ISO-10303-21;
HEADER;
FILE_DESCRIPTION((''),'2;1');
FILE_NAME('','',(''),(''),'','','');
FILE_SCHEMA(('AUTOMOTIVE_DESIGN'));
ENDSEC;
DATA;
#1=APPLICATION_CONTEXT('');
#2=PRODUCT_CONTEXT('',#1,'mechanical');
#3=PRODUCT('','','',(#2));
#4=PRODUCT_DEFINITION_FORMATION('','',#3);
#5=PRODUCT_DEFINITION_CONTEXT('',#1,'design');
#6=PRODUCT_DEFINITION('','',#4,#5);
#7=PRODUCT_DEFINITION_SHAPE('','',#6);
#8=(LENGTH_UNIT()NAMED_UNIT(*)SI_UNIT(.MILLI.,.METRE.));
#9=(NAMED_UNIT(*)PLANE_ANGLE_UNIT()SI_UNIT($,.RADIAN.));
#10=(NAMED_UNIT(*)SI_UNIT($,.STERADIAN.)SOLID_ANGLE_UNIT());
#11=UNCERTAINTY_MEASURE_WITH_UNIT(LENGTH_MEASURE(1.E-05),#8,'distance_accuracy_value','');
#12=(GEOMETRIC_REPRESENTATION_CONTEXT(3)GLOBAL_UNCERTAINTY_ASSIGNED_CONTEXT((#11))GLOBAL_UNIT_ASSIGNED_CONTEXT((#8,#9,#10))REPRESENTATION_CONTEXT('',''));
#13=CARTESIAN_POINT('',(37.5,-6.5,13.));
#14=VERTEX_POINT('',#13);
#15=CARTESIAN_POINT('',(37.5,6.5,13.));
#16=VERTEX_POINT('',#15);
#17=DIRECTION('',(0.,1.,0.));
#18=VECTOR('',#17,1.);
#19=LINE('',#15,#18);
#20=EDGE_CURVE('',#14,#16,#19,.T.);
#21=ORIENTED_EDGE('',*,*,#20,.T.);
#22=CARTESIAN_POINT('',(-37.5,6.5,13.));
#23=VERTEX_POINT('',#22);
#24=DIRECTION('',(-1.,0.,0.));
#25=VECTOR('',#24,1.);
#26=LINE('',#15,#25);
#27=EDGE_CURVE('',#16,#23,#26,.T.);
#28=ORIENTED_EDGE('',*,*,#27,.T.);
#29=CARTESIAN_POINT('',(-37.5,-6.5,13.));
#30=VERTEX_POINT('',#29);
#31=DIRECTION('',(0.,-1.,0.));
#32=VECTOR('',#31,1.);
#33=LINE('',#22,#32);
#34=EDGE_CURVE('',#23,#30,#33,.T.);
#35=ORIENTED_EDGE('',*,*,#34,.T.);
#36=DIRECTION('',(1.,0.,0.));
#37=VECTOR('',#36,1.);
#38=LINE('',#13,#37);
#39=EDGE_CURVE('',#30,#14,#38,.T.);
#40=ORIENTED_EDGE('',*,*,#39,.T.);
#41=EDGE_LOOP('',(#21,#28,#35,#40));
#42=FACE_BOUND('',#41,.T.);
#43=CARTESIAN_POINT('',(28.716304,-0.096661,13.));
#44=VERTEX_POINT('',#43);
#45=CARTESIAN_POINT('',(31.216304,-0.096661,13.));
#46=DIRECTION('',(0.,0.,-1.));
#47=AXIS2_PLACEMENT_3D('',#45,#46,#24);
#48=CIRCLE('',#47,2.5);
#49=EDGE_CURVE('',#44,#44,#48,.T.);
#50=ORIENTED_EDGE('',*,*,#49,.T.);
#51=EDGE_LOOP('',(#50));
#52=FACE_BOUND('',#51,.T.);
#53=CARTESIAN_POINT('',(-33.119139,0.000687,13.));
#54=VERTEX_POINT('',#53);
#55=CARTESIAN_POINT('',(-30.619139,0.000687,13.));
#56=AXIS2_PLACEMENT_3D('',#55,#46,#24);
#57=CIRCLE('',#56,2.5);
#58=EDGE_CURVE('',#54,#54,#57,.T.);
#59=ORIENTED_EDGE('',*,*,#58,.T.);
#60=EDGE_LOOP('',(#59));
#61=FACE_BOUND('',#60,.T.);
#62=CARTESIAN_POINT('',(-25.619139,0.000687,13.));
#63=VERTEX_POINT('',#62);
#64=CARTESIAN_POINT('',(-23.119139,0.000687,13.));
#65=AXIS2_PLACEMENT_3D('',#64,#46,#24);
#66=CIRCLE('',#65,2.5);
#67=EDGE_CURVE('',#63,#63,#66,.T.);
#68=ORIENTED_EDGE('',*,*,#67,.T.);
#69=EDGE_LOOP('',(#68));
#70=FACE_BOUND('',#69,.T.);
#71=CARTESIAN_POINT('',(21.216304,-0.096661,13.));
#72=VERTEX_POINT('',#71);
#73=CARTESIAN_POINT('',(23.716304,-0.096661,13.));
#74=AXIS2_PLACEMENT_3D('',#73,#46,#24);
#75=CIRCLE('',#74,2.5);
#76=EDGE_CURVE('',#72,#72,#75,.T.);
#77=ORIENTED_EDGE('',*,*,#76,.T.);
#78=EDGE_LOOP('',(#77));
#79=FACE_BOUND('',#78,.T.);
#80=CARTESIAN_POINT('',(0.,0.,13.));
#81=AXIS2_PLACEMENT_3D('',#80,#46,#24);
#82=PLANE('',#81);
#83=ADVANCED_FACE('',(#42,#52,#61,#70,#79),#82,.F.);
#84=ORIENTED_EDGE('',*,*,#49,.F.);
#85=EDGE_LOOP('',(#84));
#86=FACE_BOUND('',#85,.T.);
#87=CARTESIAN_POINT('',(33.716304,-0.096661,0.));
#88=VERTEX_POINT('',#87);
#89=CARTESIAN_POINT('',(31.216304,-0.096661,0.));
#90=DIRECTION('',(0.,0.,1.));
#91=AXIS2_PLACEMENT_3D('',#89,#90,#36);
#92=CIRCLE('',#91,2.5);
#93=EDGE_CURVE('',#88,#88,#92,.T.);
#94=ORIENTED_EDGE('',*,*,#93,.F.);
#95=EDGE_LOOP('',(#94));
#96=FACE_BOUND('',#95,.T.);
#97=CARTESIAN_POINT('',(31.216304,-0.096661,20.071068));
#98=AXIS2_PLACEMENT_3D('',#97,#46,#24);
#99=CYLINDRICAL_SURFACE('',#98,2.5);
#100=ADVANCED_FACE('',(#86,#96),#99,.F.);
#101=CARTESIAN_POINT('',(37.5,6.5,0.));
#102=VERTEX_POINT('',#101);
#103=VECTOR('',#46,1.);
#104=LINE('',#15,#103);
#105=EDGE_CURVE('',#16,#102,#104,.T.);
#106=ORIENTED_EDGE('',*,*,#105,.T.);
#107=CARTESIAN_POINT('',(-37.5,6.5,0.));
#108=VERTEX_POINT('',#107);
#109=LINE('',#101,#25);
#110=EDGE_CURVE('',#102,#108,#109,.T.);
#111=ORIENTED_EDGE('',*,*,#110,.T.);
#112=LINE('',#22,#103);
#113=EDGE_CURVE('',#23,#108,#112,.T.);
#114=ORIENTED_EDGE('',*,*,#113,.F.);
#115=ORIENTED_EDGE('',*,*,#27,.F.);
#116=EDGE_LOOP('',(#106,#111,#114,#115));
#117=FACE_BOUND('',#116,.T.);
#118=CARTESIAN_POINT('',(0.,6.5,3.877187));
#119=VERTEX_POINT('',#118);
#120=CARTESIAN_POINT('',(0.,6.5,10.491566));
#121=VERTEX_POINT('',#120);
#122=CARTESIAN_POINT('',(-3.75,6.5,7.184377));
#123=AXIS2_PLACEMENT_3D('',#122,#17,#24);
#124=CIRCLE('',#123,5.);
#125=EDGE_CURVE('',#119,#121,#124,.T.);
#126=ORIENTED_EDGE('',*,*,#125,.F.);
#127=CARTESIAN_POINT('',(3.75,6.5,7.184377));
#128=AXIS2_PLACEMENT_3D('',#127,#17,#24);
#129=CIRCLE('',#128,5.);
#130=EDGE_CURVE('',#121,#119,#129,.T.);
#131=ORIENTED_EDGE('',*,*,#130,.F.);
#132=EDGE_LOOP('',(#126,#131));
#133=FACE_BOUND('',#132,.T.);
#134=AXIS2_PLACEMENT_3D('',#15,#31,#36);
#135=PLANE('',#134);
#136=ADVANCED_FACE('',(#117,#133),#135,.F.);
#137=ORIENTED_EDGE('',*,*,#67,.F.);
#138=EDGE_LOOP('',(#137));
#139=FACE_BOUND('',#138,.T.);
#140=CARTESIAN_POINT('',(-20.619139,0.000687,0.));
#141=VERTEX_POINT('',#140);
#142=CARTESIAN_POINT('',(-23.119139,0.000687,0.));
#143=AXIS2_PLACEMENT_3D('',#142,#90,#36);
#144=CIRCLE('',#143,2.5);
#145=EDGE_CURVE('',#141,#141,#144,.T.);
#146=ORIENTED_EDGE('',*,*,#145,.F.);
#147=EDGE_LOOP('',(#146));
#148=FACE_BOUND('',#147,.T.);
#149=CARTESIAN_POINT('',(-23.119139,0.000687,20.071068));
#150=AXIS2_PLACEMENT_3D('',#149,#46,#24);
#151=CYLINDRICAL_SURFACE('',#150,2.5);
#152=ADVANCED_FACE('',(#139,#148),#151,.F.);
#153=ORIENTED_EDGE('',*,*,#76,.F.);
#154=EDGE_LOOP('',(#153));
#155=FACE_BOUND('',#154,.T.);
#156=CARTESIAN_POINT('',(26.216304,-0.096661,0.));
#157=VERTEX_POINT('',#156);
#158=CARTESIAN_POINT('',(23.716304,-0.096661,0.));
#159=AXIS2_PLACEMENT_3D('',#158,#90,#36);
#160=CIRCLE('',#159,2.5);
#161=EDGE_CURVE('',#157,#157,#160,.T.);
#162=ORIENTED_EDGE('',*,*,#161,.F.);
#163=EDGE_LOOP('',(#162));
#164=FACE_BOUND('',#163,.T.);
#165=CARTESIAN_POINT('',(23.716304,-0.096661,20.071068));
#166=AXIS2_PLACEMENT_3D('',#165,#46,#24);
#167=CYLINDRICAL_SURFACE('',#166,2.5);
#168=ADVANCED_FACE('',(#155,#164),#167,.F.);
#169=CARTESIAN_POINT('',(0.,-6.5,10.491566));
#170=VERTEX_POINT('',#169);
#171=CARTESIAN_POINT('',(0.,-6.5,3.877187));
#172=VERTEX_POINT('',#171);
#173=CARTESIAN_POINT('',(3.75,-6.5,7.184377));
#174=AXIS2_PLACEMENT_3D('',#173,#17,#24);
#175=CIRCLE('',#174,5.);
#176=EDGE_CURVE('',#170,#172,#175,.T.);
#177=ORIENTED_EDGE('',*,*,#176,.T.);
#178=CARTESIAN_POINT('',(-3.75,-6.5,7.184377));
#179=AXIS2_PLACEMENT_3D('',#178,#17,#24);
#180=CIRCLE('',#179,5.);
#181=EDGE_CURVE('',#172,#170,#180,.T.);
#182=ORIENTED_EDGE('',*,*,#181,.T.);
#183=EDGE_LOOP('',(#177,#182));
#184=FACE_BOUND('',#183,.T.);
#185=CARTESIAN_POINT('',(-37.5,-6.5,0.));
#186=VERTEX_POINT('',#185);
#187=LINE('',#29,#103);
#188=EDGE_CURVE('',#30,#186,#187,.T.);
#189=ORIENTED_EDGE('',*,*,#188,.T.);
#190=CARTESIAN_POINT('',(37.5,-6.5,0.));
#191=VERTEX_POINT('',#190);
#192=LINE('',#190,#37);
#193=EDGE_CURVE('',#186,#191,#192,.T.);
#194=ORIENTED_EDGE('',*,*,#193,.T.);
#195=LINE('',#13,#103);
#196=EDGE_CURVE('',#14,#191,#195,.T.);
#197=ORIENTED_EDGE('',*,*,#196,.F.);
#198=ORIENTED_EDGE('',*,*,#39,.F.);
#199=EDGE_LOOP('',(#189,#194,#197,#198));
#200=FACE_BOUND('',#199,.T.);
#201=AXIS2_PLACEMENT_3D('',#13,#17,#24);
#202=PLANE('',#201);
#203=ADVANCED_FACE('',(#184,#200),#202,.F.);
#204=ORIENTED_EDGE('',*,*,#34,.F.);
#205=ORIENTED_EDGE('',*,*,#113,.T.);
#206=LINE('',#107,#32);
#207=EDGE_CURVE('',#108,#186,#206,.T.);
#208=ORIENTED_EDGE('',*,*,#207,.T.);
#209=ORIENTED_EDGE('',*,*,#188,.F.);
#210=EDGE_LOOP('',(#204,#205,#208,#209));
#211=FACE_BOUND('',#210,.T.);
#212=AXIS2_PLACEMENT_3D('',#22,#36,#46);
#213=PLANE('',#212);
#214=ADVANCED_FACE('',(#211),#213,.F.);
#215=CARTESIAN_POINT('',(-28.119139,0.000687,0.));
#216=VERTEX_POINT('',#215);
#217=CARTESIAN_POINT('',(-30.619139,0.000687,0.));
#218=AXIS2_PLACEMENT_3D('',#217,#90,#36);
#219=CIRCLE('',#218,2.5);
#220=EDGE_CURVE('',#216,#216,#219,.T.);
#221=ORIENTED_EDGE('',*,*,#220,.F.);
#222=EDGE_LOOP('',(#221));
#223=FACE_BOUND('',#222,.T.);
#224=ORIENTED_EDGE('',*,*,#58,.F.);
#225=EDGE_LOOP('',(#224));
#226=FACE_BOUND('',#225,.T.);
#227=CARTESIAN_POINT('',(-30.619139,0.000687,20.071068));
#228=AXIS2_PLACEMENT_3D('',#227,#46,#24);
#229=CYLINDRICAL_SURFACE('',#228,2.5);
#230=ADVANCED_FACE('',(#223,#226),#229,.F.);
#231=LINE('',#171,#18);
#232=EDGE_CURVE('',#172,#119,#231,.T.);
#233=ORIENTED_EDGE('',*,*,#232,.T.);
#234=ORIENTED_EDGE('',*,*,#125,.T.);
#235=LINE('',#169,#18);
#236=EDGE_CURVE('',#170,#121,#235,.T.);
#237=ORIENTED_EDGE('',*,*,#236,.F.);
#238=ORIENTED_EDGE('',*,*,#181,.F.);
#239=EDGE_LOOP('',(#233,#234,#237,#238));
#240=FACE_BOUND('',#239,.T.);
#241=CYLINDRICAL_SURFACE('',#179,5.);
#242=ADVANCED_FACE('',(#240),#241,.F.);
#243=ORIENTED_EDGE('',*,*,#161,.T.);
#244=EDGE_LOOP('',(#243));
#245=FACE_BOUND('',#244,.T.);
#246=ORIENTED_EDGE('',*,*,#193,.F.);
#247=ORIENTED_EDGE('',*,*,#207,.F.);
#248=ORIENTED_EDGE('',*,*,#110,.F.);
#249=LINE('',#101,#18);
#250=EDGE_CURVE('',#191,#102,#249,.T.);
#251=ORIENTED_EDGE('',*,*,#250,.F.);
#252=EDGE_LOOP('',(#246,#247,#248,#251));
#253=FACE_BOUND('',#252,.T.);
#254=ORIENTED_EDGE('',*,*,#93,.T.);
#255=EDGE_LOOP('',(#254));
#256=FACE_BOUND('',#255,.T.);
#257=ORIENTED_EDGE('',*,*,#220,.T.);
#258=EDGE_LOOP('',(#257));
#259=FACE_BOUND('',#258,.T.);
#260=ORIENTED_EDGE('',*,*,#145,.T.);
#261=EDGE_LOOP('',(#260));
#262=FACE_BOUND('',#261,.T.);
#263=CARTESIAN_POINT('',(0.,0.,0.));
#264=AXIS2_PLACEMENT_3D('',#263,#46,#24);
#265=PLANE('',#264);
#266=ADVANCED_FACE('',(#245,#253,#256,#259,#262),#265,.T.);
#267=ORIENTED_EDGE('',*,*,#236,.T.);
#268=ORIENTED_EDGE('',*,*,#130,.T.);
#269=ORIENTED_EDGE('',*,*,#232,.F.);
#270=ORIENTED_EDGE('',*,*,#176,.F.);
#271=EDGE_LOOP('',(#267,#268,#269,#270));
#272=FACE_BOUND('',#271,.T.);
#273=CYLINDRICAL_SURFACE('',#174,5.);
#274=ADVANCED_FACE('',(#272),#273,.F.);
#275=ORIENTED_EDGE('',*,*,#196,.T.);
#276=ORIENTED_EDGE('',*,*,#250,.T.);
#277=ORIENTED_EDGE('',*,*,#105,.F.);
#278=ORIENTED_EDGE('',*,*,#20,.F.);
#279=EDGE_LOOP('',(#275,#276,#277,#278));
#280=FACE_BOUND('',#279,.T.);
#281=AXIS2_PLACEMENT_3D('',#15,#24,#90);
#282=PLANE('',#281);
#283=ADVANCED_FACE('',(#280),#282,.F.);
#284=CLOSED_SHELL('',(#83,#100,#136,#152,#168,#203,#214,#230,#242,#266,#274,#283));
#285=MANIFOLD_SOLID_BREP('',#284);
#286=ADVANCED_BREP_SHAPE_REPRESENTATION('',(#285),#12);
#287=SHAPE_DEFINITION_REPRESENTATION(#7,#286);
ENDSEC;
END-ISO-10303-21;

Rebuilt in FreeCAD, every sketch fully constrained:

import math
import FreeCAD as App
import Part
import Sketcher

V = App.Vector
Q = App.Units.Quantity


def add_polygon(sketch, points):
    """Adds a closed chain of lines whose ends are joined by coincident constraints."""
    first, n = sketch.GeometryCount, len(points)
    for a, b in zip(points, points[1:] + points[:1]):
        sketch.addGeometry(Part.LineSegment(App.Vector(*a, 0), App.Vector(*b, 0)), False)
    for i in range(n):
        sketch.addConstraint(Sketcher.Constraint("Coincident", first + i, 2, first + (i + 1) % n, 1))

doc = App.newDocument("Part")
params = doc.addObject("Spreadsheet::Sheet", "Params")
for row, (alias, value) in enumerate([
    ("sketch1_width", "75 mm"),
    ("sketch1_height", "13 mm"),
    ("pad1_length", "13 mm"),
    ("sketch2_diameter", "5 mm"),
    ("pocket1_length", "13 mm"),
    ("sketch3_radius", "5 mm"),
    ("pocket2_length", "13 mm"),
], start=1):
    params.set(f"A{row}", alias)
    params.set(f"B{row}", "=" + value)
    params.setAlias(f"B{row}", alias)

body = doc.addObject("PartDesign::Body", "Body")

# Sketch on XY plane
sketch1 = body.newObject("Sketcher::SketchObject", "Sketch")
sketch1.AttachmentSupport = (doc.getObject("XY_Plane"), [""])
sketch1.MapMode = "FlatFace"
add_polygon(sketch1, [(-38, 6), (-38, -6), (38, -6), (38, 6)])  # lines 0-3
sketch1.addConstraint(Sketcher.Constraint("Vertical", 0))
sketch1.addConstraint(Sketcher.Constraint("Horizontal", 1))
sketch1.addConstraint(Sketcher.Constraint("Vertical", 2))
sketch1.addConstraint(Sketcher.Constraint("Horizontal", 3))
sketch1.addConstraint(Sketcher.Constraint("Symmetric", 0, 2, 2, 2, -1, 1))
sketch1.addConstraint(Sketcher.Constraint("DistanceX", 1, 1, 1, 2, Q("75 mm")))
sketch1.addConstraint(Sketcher.Constraint("DistanceY", 0, 2, 0, 1, Q("13 mm")))
sketch1.setExpression("Constraints[9]", "Params.sketch1_width")
sketch1.setExpression("Constraints[10]", "Params.sketch1_height")
pad1 = body.newObject("PartDesign::Pad", "Pad")
pad1.Profile = sketch1
pad1.setExpression("Length", "Params.pad1_length")

# Sketch on XY plane
sketch2 = body.newObject("Sketcher::SketchObject", "Sketch001")
sketch2.AttachmentSupport = (doc.getObject("XY_Plane"), [""])
sketch2.MapMode = "FlatFace"
sketch2.addGeometry(Part.Circle(V(31.2, -0.1, 0), V(0, 0, 1), 2.5), False)
sketch2.addGeometry(Part.Circle(V(23.7, -0.1, 0), V(0, 0, 1), 2.5), False)
sketch2.addGeometry(Part.Circle(V(-23.1, 0, 0), V(0, 0, 1), 2.5), False)
sketch2.addGeometry(Part.Circle(V(-30.6, 0, 0), V(0, 0, 1), 2.5), False)
sketch2.addConstraint(Sketcher.Constraint("Equal", 0, 1))
sketch2.addConstraint(Sketcher.Constraint("Equal", 1, 2))
sketch2.addConstraint(Sketcher.Constraint("Equal", 2, 3))
sketch2.addConstraint(Sketcher.Constraint("Horizontal", 0, 3, 1, 3))
sketch2.addConstraint(Sketcher.Constraint("Horizontal", 2, 3, 3, 3))
sketch2.addConstraint(Sketcher.Constraint("Diameter", 0, Q("5 mm")))
sketch2.addConstraint(Sketcher.Constraint("DistanceX", 1, 3, 0, 3, Q("7.5 mm")))
sketch2.addConstraint(Sketcher.Constraint("DistanceX", 3, 3, 2, 3, Q("7.5 mm")))
sketch2.addConstraint(Sketcher.Constraint("DistanceY", 0, 3, -1, 1, Q("0.096661 mm")))
sketch2.addConstraint(Sketcher.Constraint("DistanceX", 2, 3, -1, 1, Q("23.119139 mm")))
sketch2.addConstraint(Sketcher.Constraint("DistanceY", 1, 3, 2, 3, Q("0.097348 mm")))
sketch2.addConstraint(Sketcher.Constraint("DistanceX", -1, 1, 0, 3, Q("31.216304 mm")))
sketch2.setExpression("Constraints[5]", "Params.sketch2_diameter")
pocket1 = body.newObject("PartDesign::Pocket", "Pocket")
pocket1.Profile = sketch2
pocket1.setExpression("Length", "Params.pocket1_length")
pocket1.Reversed = True

# Sketch on XZ plane
sketch3 = body.newObject("Sketcher::SketchObject", "Sketch002")
sketch3.AttachmentSupport = (doc.getObject("XZ_Plane"), [""])
sketch3.MapMode = "FlatFace"
sketch3.AttachmentOffset = App.Placement(V(0, 0, -6.5), App.Rotation())
sketch3.addGeometry(Part.ArcOfCircle(Part.Circle(V(-4, 7, 0), V(0, 0, 1), 5), math.radians(41), math.radians(319)), False)
sketch3.addGeometry(Part.ArcOfCircle(Part.Circle(V(4, 7, 0), V(0, 0, 1), 5), math.radians(-139), math.radians(139)), False)
sketch3.addConstraint(Sketcher.Constraint("Coincident", 0, 1, 1, 2))
sketch3.addConstraint(Sketcher.Constraint("Coincident", 1, 1, 0, 2))
sketch3.addConstraint(Sketcher.Constraint("Equal", 0, 1))
sketch3.addConstraint(Sketcher.Constraint("Symmetric", 0, 3, 1, 3, -2))
sketch3.addConstraint(Sketcher.Constraint("Radius", 0, Q("5 mm")))
sketch3.addConstraint(Sketcher.Constraint("DistanceX", 0, 3, 1, 3, Q("7.5 mm")))
sketch3.addConstraint(Sketcher.Constraint("DistanceY", -1, 1, 0, 3, Q("7.184377 mm")))
sketch3.setExpression("Constraints[4]", "Params.sketch3_radius")
pocket2 = body.newObject("PartDesign::Pocket", "Pocket001")
pocket2.Profile = sketch3
pocket2.setExpression("Length", "Params.pocket2_length")
pocket2.Reversed = True

doc.recompute()
